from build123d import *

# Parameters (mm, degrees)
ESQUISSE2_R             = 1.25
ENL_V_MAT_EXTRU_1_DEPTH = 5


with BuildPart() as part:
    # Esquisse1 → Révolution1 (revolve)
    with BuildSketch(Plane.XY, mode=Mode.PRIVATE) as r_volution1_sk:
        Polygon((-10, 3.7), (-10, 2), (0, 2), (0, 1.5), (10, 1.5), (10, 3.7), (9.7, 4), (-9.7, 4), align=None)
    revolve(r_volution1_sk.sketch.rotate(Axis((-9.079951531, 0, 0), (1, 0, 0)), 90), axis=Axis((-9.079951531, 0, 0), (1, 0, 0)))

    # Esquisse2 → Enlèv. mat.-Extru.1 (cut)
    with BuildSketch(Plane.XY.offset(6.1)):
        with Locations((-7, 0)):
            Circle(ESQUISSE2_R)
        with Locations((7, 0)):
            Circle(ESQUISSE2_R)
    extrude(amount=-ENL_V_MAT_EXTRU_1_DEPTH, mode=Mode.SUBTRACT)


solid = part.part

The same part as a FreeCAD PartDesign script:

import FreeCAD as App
import Part
import Sketcher
Q = App.Units.Quantity


def add_polygon(sketch, points):
    """Adds a closed chain of lines whose ends are joined by coincident constraints."""
    first, n = sketch.GeometryCount, len(points)
    for a, b in zip(points, points[1:] + points[:1]):
        sketch.addGeometry(Part.LineSegment(App.Vector(*a, 0), App.Vector(*b, 0)), False)
    for i in range(n):
        sketch.addConstraint(Sketcher.Constraint("Coincident", first + i, 2, first + (i + 1) % n, 1))

doc = App.newDocument("Part")
body = doc.addObject("PartDesign::Body", "Body")

sketch1 = body.newObject("Sketcher::SketchObject", "Sketch")
sketch1.AttachmentSupport = (doc.getObject("XY_Plane"), [""])
sketch1.MapMode = "FlatFace"
add_polygon(sketch1, [(-10, 3.7), (-10, 2), (0, 2), (0, 1.5), (10, 1.5), (10, 3.7), (9.7, 4), (-9.7, 4)])
sketch1.addConstraint(Sketcher.Constraint("Vertical", 0))
sketch1.addConstraint(Sketcher.Constraint("Horizontal", 1))
sketch1.addConstraint(Sketcher.Constraint("Vertical", 2))
sketch1.addConstraint(Sketcher.Constraint("Horizontal", 3))
sketch1.addConstraint(Sketcher.Constraint("Vertical", 4))
sketch1.addConstraint(Sketcher.Constraint("Horizontal", 6))
sketch1.addConstraint(Sketcher.Constraint("Symmetric", 4, 2, 7, 2, -2))
sketch1.addConstraint(Sketcher.Constraint("PointOnObject", 1, 2, -2))
sketch1.addConstraint(Sketcher.Constraint("Perpendicular", 5, 7))
sketch1.addConstraint(Sketcher.Constraint("Equal", 5, 7))
sketch1.addConstraint(Sketcher.Constraint("DistanceX", 1, 1, 1, 2, Q("10 mm")))
sketch1.addConstraint(Sketcher.Constraint("DistanceX", 6, 2, 6, 1, Q("19.4 mm")))
sketch1.addConstraint(Sketcher.Constraint("DistanceY", 0, 2, 0, 1, Q("1.7 mm")))
sketch1.addConstraint(Sketcher.Constraint("DistanceY", 2, 2, 2, 1, Q("0.5 mm")))
sketch1.addConstraint(Sketcher.Constraint("DistanceY", -1, 1, 0, 2, Q("2 mm")))
revolution = body.newObject("PartDesign::Revolution", "Revolution")
revolution.Profile = sketch1
revolution.ReferenceAxis = (sketch1, ["H_Axis"])
revolution.Angle = 360

sketch2 = body.newObject("Sketcher::SketchObject", "Sketch001")
sketch2.AttachmentSupport = (doc.getObject("XY_Plane"), [""])
sketch2.MapMode = "FlatFace"
sketch2.AttachmentOffset = App.Placement(App.Vector(0, 0, 6.1), App.Rotation())
sketch2.addGeometry(Part.Circle(App.Vector(-7, 0, 0), App.Vector(0, 0, 1), 1.2), False)
sketch2.addGeometry(Part.Circle(App.Vector(7, 0, 0), App.Vector(0, 0, 1), 1.2), False)
sketch2.addConstraint(Sketcher.Constraint("Equal", 0, 1))
sketch2.addConstraint(Sketcher.Constraint("Symmetric", 0, 3, 1, 3, -1, 1))
sketch2.addConstraint(Sketcher.Constraint("PointOnObject", 0, 3, -1))
sketch2.addConstraint(Sketcher.Constraint("Diameter", 0, Q("2.5 mm")))
sketch2.addConstraint(Sketcher.Constraint("DistanceX", 0, 3, -1, 1, Q("7 mm")))
pocket1 = body.newObject("PartDesign::Pocket", "Pocket")
pocket1.Profile = sketch2
pocket1.Length = 5

doc.recompute()
